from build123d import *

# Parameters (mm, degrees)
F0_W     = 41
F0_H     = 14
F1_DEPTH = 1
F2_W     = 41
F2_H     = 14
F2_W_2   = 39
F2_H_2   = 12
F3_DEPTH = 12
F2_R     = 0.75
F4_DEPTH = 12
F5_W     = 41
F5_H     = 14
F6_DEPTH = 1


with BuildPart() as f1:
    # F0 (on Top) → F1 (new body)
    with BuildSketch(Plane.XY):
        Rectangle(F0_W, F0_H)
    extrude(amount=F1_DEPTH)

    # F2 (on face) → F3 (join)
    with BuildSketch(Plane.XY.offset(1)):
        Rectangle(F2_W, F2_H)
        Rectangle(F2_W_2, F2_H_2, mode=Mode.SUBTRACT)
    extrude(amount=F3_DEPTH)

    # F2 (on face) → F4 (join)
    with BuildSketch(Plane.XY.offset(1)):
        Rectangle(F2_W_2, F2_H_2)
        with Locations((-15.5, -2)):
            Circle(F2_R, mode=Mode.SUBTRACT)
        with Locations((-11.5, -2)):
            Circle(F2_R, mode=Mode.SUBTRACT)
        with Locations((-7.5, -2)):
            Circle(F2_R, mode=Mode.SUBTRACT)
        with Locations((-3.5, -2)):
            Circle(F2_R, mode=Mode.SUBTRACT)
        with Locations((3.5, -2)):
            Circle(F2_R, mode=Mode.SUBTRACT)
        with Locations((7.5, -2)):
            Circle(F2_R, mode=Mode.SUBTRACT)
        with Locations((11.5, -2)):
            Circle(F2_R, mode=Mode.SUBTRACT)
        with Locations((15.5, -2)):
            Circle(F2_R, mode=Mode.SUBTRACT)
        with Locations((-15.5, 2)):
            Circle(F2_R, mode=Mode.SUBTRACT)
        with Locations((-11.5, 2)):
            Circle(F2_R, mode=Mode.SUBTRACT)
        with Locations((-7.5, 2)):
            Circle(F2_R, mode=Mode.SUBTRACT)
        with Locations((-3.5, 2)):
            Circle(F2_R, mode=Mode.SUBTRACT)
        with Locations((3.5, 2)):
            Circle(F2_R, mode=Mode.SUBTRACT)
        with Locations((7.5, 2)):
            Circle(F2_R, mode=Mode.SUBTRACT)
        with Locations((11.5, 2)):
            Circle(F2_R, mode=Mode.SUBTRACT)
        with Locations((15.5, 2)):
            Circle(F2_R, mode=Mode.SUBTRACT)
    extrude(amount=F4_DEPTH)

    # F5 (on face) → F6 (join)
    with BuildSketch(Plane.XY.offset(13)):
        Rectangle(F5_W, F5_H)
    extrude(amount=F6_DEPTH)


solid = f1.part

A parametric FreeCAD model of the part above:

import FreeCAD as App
import Part
import Sketcher


def add_polygon(sketch, points):
    """Adds a closed chain of lines whose ends are joined by coincident constraints."""
    first, n = sketch.GeometryCount, len(points)
    for a, b in zip(points, points[1:] + points[:1]):
        sketch.addGeometry(Part.LineSegment(App.Vector(*a, 0), App.Vector(*b, 0)), False)
    for i in range(n):
        sketch.addConstraint(Sketcher.Constraint("Coincident", first + i, 2, first + (i + 1) % n, 1))

doc = App.newDocument("Part")
body = doc.addObject("PartDesign::Body", "Body")

sketch1 = body.newObject("Sketcher::SketchObject", "Sketch")
sketch1.AttachmentSupport = (doc.getObject("XY_Plane"), [""])
sketch1.MapMode = "FlatFace"
add_polygon(sketch1, [(-20, 7), (-20, -7), (20, -7), (20, 7)])
sketch1.addConstraint(Sketcher.Constraint("Vertical", 0))
sketch1.addConstraint(Sketcher.Constraint("Horizontal", 1))
sketch1.addConstraint(Sketcher.Constraint("Vertical", 2))
sketch1.addConstraint(Sketcher.Constraint("Horizontal", 3))
sketch1.addConstraint(Sketcher.Constraint("Symmetric", 0, 2, 2, 2, -1, 1))
sketch1.addConstraint(Sketcher.Constraint("DistanceX", 1, 1, 1, 2, 41.0))
sketch1.addConstraint(Sketcher.Constraint("DistanceY", 0, 2, 0, 1, 14.0))
pad1 = body.newObject("PartDesign::Pad", "Pad")
pad1.Profile = sketch1
pad1.Length = 1

sketch2 = body.newObject("Sketcher::SketchObject", "Sketch001")
sketch2.AttachmentSupport = (doc.getObject("XY_Plane"), [""])
sketch2.MapMode = "FlatFace"
sketch2.AttachmentOffset = App.Placement(App.Vector(0, 0, 1), App.Rotation())
add_polygon(sketch2, [(-20, 7), (-20, -7), (20, -7), (20, 7)])
add_polygon(sketch2, [(20, -6), (-20, -6), (-20, 6), (20, 6)])
sketch2.addConstraint(Sketcher.Constraint("Vertical", 0))
sketch2.addConstraint(Sketcher.Constraint("Horizontal", 1))
sketch2.addConstraint(Sketcher.Constraint("Vertical", 2))
sketch2.addConstraint(Sketcher.Constraint("Horizontal", 3))
sketch2.addConstraint(Sketcher.Constraint("Horizontal", 4))
sketch2.addConstraint(Sketcher.Constraint("Vertical", 5))
sketch2.addConstraint(Sketcher.Constraint("Horizontal", 6))
sketch2.addConstraint(Sketcher.Constraint("Vertical", 7))
sketch2.addConstraint(Sketcher.Constraint("Symmetric", 0, 2, 2, 2, -1, 1))
sketch2.addConstraint(Sketcher.Constraint("Symmetric", 4, 2, 6, 2, -1, 1))
sketch2.addConstraint(Sketcher.Constraint("DistanceX", 1, 1, 1, 2, 41.0))
sketch2.addConstraint(Sketcher.Constraint("DistanceX", 4, 2, 4, 1, 39.0))
sketch2.addConstraint(Sketcher.Constraint("DistanceY", 0, 2, 0, 1, 14.0))
sketch2.addConstraint(Sketcher.Constraint("DistanceY", 5, 1, 5, 2, 12.0))
pad2 = body.newObject("PartDesign::Pad", "Pad001")
pad2.Profile = sketch2
pad2.Length = 12

sketch3 = body.newObject("Sketcher::SketchObject", "Sketch002")
sketch3.AttachmentSupport = (doc.getObject("XY_Plane"), [""])
sketch3.MapMode = "FlatFace"
sketch3.AttachmentOffset = App.Placement(App.Vector(0, 0, 1), App.Rotation())
add_polygon(sketch3, [(-19.5, 6), (-19.5, -6), (19.5, -6), (19.5, 6)])
sketch3.addGeometry(Part.Circle(App.Vector(-15.5, -2, 0), App.Vector(0, 0, 1), 0.8), False)
sketch3.addGeometry(Part.Circle(App.Vector(-11.5, -2, 0), App.Vector(0, 0, 1), 0.8), False)
sketch3.addGeometry(Part.Circle(App.Vector(-7.5, -2, 0), App.Vector(0, 0, 1), 0.8), False)
sketch3.addGeometry(Part.Circle(App.Vector(-3.5, -2, 0), App.Vector(0, 0, 1), 0.8), False)
sketch3.addGeometry(Part.Circle(App.Vector(3.5, -2, 0), App.Vector(0, 0, 1), 0.8), False)
sketch3.addGeometry(Part.Circle(App.Vector(7.5, -2, 0), App.Vector(0, 0, 1), 0.8), False)
sketch3.addGeometry(Part.Circle(App.Vector(11.5, -2, 0), App.Vector(0, 0, 1), 0.8), False)
sketch3.addGeometry(Part.Circle(App.Vector(15.5, -2, 0), App.Vector(0, 0, 1), 0.8), False)
sketch3.addGeometry(Part.Circle(App.Vector(-15.5, 2, 0), App.Vector(0, 0, 1), 0.8), False)
sketch3.addGeometry(Part.Circle(App.Vector(-11.5, 2, 0), App.Vector(0, 0, 1), 0.8), False)
sketch3.addGeometry(Part.Circle(App.Vector(-7.5, 2, 0), App.Vector(0, 0, 1), 0.8), False)
sketch3.addGeometry(Part.Circle(App.Vector(-3.5, 2, 0), App.Vector(0, 0, 1), 0.8), False)
sketch3.addGeometry(Part.Circle(App.Vector(3.5, 2, 0), App.Vector(0, 0, 1), 0.8), False)
sketch3.addGeometry(Part.Circle(App.Vector(7.5, 2, 0), App.Vector(0, 0, 1), 0.8), False)
sketch3.addGeometry(Part.Circle(App.Vector(11.5, 2, 0), App.Vector(0, 0, 1), 0.8), False)
sketch3.addGeometry(Part.Circle(App.Vector(15.5, 2, 0), App.Vector(0, 0, 1), 0.8), False)
sketch3.addConstraint(Sketcher.Constraint("Vertical", 0))
sketch3.addConstraint(Sketcher.Constraint("Horizontal", 1))
sketch3.addConstraint(Sketcher.Constraint("Vertical", 2))
sketch3.addConstraint(Sketcher.Constraint("Horizontal", 3))
sketch3.addConstraint(Sketcher.Constraint("Equal", 4, 5))
sketch3.addConstraint(Sketcher.Constraint("Equal", 5, 6))
sketch3.addConstraint(Sketcher.Constraint("Equal", 6, 7))
sketch3.addConstraint(Sketcher.Constraint("Equal", 7, 8))
sketch3.addConstraint(Sketcher.Constraint("Equal", 8, 9))
sketch3.addConstraint(Sketcher.Constraint("Equal", 9, 10))
sketch3.addConstraint(Sketcher.Constraint("Equal", 10, 11))
sketch3.addConstraint(Sketcher.Constraint("Equal", 11, 12))
sketch3.addConstraint(Sketcher.Constraint("Equal", 12, 13))
sketch3.addConstraint(Sketcher.Constraint("Equal", 13, 14))
sketch3.addConstraint(Sketcher.Constraint("Equal", 14, 15))
sketch3.addConstraint(Sketcher.Constraint("Equal", 15, 16))
sketch3.addConstraint(Sketcher.Constraint("Equal", 16, 17))
sketch3.addConstraint(Sketcher.Constraint("Equal", 17, 18))
sketch3.addConstraint(Sketcher.Constraint("Equal", 18, 19))
sketch3.addConstraint(Sketcher.Constraint("Symmetric", 11, 3, 12, 3, -1, 1))
sketch3.addConstraint(Sketcher.Constraint("Symmetric", 10, 3, 13, 3, -1, 1))
sketch3.addConstraint(Sketcher.Constraint("Symmetric", 9, 3, 14, 3, -1, 1))
sketch3.addConstraint(Sketcher.Constraint("Symmetric", 8, 3, 15, 3, -1, 1))
sketch3.addConstraint(Sketcher.Constraint("Symmetric", 7, 3, 16, 3, -1, 1))
sketch3.addConstraint(Sketcher.Constraint("Symmetric", 6, 3, 17, 3, -1, 1))
sketch3.addConstraint(Sketcher.Constraint("Symmetric", 5, 3, 18, 3, -1, 1))
sketch3.addConstraint(Sketcher.Constraint("Symmetric", 4, 3, 19, 3, -1, 1))
sketch3.addConstraint(Sketcher.Constraint("Symmetric", 0, 2, 2, 2, -1, 1))
sketch3.addConstraint(Sketcher.Constraint("Symmetric", 7, 3, 8, 3, -2))
sketch3.addConstraint(Sketcher.Constraint("Symmetric", 6, 3, 9, 3, -2))
sketch3.addConstraint(Sketcher.Constraint("Symmetric", 5, 3, 10, 3, -2))
sketch3.addConstraint(Sketcher.Constraint("Symmetric", 4, 3, 11, 3, -2))
sketch3.addConstraint(Sketcher.Constraint("Horizontal", 4, 3, 5, 3))
sketch3.addConstraint(Sketcher.Constraint("Horizontal", 5, 3, 6, 3))
sketch3.addConstraint(Sketcher.Constraint("Horizontal", 6, 3, 7, 3))
sketch3.addConstraint(Sketcher.Constraint("Diameter", 4, 1.5))
sketch3.addConstraint(Sketcher.Constraint("DistanceX", 1, 1, 1, 2, 39.0))
sketch3.addConstraint(Sketcher.Constraint("DistanceY", 0, 2, 0, 1, 12.0))
sketch3.addConstraint(Sketcher.Constraint("DistanceY", 4, 3, -1, 1, 2.0))
sketch3.addConstraint(Sketcher.Constraint("DistanceX", 4, 3, 5, 3, 4.0))
sketch3.addConstraint(Sketcher.Constraint("DistanceX", 5, 3, 6, 3, 4.0))
sketch3.addConstraint(Sketcher.Constraint("DistanceX", 6, 3, 7, 3, 4.0))
sketch3.addConstraint(Sketcher.Constraint("DistanceX", 7, 3, 8, 3, 7.0))
pad3 = body.newObject("PartDesign::Pad", "Pad002")
pad3.Profile = sketch3
pad3.Length = 12

sketch4 = body.newObject("Sketcher::SketchObject", "Sketch003")
sketch4.AttachmentSupport = (doc.getObject("XY_Plane"), [""])
sketch4.MapMode = "FlatFace"
sketch4.AttachmentOffset = App.Placement(App.Vector(0, 0, 13), App.Rotation())
add_polygon(sketch4, [(-20, 7), (-20, -7), (20, -7), (20, 7)])
sketch4.addConstraint(Sketcher.Constraint("Vertical", 0))
sketch4.addConstraint(Sketcher.Constraint("Horizontal", 1))
sketch4.addConstraint(Sketcher.Constraint("Vertical", 2))
sketch4.addConstraint(Sketcher.Constraint("Horizontal", 3))
sketch4.addConstraint(Sketcher.Constraint("Symmetric", 0, 2, 2, 2, -1, 1))
sketch4.addConstraint(Sketcher.Constraint("DistanceX", 1, 1, 1, 2, 41.0))
sketch4.addConstraint(Sketcher.Constraint("DistanceY", 0, 2, 0, 1, 14.0))
pad4 = body.newObject("PartDesign::Pad", "Pad003")
pad4.Profile = sketch4
pad4.Length = 1

doc.recompute()
